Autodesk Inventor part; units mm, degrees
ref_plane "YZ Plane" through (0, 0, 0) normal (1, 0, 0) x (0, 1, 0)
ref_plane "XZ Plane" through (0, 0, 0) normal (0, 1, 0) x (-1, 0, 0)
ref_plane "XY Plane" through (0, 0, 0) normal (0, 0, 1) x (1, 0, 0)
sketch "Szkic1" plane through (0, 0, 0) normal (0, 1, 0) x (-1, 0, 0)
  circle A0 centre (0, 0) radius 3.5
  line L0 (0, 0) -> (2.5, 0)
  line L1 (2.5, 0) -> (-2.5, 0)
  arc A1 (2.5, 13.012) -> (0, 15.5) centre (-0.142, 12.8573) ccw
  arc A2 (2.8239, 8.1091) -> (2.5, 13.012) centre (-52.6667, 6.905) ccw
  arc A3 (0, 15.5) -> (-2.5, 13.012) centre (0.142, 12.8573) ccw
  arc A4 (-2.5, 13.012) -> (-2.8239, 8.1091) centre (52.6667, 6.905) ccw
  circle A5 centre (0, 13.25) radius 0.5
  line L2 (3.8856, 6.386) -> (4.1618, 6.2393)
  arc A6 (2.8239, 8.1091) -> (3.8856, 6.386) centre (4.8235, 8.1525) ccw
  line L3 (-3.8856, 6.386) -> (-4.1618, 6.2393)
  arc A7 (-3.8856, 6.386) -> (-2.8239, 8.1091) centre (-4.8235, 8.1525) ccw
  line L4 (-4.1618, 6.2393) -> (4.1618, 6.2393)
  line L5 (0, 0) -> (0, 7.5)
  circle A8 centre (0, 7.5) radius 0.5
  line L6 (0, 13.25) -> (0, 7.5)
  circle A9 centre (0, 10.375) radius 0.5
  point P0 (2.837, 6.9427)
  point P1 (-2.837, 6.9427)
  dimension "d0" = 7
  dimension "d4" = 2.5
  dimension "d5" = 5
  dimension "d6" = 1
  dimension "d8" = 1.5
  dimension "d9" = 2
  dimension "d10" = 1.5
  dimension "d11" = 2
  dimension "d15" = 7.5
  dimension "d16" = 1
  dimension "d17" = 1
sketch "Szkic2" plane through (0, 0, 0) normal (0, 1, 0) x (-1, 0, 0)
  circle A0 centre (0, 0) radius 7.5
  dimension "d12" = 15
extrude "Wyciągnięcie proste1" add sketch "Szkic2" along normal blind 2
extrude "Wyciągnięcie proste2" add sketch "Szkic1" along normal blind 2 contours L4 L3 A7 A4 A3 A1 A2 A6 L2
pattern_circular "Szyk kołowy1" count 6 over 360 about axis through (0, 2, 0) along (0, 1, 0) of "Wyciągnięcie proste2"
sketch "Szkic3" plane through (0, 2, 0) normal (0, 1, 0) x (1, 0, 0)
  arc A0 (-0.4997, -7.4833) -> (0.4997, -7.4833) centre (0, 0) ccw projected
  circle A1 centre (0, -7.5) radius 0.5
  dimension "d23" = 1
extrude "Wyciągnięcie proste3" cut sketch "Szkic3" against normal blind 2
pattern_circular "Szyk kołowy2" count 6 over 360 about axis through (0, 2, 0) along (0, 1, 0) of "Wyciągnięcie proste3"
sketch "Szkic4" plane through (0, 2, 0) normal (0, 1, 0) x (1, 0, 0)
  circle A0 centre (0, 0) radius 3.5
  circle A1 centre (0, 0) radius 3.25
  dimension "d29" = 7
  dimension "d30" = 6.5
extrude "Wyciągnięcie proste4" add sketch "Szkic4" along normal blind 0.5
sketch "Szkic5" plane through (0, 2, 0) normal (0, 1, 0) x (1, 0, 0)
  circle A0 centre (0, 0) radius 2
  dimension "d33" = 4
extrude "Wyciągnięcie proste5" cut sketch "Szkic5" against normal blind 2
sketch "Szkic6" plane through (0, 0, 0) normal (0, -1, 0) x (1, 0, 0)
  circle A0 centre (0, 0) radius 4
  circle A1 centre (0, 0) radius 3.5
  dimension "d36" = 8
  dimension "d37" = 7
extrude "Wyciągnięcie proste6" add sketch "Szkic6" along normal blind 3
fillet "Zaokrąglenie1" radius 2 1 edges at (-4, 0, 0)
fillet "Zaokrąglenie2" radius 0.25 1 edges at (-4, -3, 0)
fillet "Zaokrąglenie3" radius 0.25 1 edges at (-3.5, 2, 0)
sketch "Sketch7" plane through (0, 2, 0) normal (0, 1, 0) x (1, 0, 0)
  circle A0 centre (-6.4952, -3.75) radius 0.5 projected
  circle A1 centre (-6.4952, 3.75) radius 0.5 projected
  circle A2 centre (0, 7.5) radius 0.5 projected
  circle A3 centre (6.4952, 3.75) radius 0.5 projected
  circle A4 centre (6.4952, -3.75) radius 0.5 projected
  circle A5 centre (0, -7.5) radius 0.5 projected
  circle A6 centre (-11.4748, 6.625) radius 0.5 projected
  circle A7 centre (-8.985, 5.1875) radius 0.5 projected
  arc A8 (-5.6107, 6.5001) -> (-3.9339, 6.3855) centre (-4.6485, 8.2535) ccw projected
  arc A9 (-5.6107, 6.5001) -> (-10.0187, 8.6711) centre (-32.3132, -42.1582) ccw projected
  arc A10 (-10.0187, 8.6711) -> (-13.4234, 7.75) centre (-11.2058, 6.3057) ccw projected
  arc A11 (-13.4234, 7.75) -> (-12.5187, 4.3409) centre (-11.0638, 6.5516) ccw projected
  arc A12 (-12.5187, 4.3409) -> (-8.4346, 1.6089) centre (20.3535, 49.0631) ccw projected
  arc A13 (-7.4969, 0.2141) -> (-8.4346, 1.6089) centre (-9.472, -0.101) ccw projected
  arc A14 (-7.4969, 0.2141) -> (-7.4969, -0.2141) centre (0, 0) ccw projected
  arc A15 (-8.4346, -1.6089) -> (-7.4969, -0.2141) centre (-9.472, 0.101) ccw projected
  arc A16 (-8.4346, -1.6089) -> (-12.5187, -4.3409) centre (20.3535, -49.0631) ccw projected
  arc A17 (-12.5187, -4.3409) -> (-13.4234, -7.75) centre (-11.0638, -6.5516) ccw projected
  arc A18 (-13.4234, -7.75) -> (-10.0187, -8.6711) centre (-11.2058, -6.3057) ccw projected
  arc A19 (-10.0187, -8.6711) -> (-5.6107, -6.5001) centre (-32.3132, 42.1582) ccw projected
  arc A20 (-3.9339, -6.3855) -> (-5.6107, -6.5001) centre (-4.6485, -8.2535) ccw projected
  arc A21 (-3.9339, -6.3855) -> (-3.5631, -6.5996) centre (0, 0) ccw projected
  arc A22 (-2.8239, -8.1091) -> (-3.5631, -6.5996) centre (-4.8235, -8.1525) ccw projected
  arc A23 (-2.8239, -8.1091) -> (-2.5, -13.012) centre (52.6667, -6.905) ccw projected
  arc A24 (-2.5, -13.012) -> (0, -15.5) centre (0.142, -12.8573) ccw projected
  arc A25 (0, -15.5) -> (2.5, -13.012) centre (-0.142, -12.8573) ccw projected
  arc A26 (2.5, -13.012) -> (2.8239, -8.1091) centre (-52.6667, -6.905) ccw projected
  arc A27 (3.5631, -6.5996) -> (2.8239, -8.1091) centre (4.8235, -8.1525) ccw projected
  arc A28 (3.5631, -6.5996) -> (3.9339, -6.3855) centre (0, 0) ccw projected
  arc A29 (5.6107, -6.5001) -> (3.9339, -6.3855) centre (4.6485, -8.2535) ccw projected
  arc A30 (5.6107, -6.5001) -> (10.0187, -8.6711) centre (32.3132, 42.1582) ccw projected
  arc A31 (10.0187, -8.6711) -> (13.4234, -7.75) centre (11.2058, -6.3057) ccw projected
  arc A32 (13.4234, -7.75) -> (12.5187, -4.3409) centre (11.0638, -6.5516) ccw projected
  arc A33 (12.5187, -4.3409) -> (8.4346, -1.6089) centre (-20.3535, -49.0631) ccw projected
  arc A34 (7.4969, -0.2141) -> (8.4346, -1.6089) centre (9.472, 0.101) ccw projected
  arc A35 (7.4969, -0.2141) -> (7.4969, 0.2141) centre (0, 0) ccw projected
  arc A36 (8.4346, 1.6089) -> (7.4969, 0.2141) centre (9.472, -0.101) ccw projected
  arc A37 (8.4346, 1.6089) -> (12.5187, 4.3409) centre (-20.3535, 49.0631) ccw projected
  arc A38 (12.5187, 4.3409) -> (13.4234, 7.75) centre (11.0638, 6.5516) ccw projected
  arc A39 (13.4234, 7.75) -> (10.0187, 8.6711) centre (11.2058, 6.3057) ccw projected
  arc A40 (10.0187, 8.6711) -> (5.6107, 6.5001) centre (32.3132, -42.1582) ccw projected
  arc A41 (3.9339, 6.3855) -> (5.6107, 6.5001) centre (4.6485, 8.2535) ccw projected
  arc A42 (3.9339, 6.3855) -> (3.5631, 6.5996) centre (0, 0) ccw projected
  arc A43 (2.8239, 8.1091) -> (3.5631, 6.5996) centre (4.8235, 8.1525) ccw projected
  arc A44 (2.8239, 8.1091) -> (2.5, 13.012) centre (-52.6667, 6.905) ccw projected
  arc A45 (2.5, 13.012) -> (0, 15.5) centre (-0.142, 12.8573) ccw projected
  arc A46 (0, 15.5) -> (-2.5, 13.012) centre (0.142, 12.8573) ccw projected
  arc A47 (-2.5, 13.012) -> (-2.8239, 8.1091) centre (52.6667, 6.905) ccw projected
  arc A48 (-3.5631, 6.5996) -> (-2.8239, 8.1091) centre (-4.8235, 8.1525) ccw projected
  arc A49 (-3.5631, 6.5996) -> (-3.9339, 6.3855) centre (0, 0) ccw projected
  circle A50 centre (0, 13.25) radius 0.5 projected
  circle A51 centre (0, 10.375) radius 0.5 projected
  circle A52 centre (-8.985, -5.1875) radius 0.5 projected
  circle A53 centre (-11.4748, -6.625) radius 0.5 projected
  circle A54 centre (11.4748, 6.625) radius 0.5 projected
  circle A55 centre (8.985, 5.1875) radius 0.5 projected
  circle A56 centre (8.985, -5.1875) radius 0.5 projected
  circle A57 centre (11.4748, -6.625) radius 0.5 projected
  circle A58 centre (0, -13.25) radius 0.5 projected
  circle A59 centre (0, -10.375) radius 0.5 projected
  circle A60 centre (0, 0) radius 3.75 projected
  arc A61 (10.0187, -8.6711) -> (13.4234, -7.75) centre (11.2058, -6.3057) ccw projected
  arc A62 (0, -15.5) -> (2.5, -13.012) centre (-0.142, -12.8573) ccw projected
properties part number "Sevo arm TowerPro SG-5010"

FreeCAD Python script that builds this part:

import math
import FreeCAD as App
import Part
import Sketcher
from FreeCAD import Vector
Q = App.Units.Quantity


def edges_at(feature, points):
    """Names of the edges that pass closest to the given points."""
    edges = feature.Shape.Edges
    near = lambda p: min(range(len(edges)), key=lambda i: edges[i].distToShape(Part.Vertex(*p))[0])
    return sorted({f"Edge{near(p) + 1}" for p in points})

doc = App.newDocument("Part")
body = doc.addObject("PartDesign::Body", "Body")

# Sketch on XZ plane
sketch1 = doc.addObject("Sketcher::SketchObject", "Sketch")
body.addObject(sketch1)
sketch1.AttachmentSupport = (doc.XZ_Plane, [""])
sketch1.MapMode = "FlatFace"
sketch1.addGeometry(Part.Circle(Vector(0, 0, 0), Vector(0, 0, 1), 8), False)
sketch1.addConstraint([
    Sketcher.Constraint("Coincident", 0, 3, -1, 1),
    Sketcher.Constraint("Diameter", 0, Q("15 mm")),
])
pad1 = doc.addObject("PartDesign::Pad", "Pad")
body.addObject(pad1)
pad1.Profile = sketch1
pad1.Length = 2
pad1.Reversed = True

# Sketch on XZ plane
sketch2 = doc.addObject("Sketcher::SketchObject", "Sketch001")
body.addObject(sketch2)
sketch2.AttachmentSupport = (doc.XZ_Plane, [""])
sketch2.MapMode = "FlatFace"
sketch2.addGeometry([
    Part.LineSegment(Vector(4.16, 6.24, 0), Vector(0, 6.24, 0)),  # 0
    Part.LineSegment(Vector(0, 6.24, 0), Vector(-4.16, 6.24, 0)),  # 1
    Part.LineSegment(Vector(-4.16, 6.24, 0), Vector(-3.89, 6.39, 0)),  # 2
    Part.ArcOfCircle(Part.Circle(Vector(-4.82, 8.15, 0), Vector(0, 0, 1), 2), math.radians(-62), math.radians(-1)),  # 3
    Part.ArcOfCircle(Part.Circle(Vector(52.68, 6.9, 0), Vector(0, 0, 1), 55.52), math.radians(173.68), math.radians(178.76)),  # 4
    Part.ArcOfCircle(Part.Circle(Vector(0.14, 12.86, 0), Vector(0, 0, 1), 2.65), math.radians(93), math.radians(177)),  # 5
    Part.ArcOfCircle(Part.Circle(Vector(-0.14, 12.86, 0), Vector(0, 0, 1), 2.65), math.radians(3), math.radians(87)),  # 6
    Part.ArcOfCircle(Part.Circle(Vector(-52.65, 6.91, 0), Vector(0, 0, 1), 55.49), math.radians(1.24), math.radians(6.32)),  # 7
    Part.ArcOfCircle(Part.Circle(Vector(4.82, 8.15, 0), Vector(0, 0, 1), 2), math.radians(-179), math.radians(-118)),  # 8
    Part.LineSegment(Vector(3.89, 6.39, 0), Vector(4.16, 6.24, 0)),  # 9
    Part.ArcOfCircle(Part.Circle(Vector(0, 7.5, 0), Vector(0, 0, 1), 0.5), math.radians(90), math.radians(270)),  # 10
    Part.ArcOfCircle(Part.Circle(Vector(0, 7.5, 0), Vector(0, 0, 1), 0.5), math.radians(-90), math.radians(90)),  # 11
    Part.ArcOfCircle(Part.Circle(Vector(0, 10.38, 0), Vector(0, 0, 1), 0.5), math.radians(90), math.radians(270)),  # 12
    Part.ArcOfCircle(Part.Circle(Vector(0, 10.38, 0), Vector(0, 0, 1), 0.5), math.radians(-90), math.radians(90)),  # 13
    Part.Circle(Vector(0, 13.25, 0), Vector(0, 0, 1), 0.5),  # 14
], False)
sketch2.addConstraint([
    Sketcher.Constraint("Coincident", 0, 2, 1, 1),
    Sketcher.Constraint("Coincident", 1, 2, 2, 1),
    Sketcher.Constraint("Tangent", 2, 2, 3, 1),
    Sketcher.Constraint("Tangent", 3, 2, 4, 2),
    Sketcher.Constraint("Coincident", 4, 1, 5, 2),
    Sketcher.Constraint("Coincident", 5, 1, 6, 2),
    Sketcher.Constraint("Coincident", 6, 1, 7, 2),
    Sketcher.Constraint("Tangent", 7, 1, 8, 1),
    Sketcher.Constraint("Tangent", 8, 2, 9, 1),
    Sketcher.Constraint("Coincident", 9, 2, 0, 1),
    Sketcher.Constraint("Tangent", 10, 1, 11, 2),
    Sketcher.Constraint("Coincident", 11, 1, 10, 2),
    Sketcher.Constraint("Tangent", 12, 1, 13, 2),
    Sketcher.Constraint("Coincident", 13, 1, 12, 2),
    Sketcher.Constraint("Horizontal", 0),
    Sketcher.Constraint("Horizontal", 1),
    Sketcher.Constraint("Equal", 5, 6),
    Sketcher.Constraint("Equal", 3, 8),
    Sketcher.Constraint("Equal", 11, 12),
    Sketcher.Constraint("Equal", 13, 14),
    Sketcher.Constraint("Symmetric", 5, 3, 6, 3, -2),
    Sketcher.Constraint("Symmetric", 3, 3, 8, 3, -2),
    Sketcher.Constraint("PointOnObject", 10, 3, -2),
    Sketcher.Constraint("PointOnObject", 12, 3, -2),
    Sketcher.Constraint("PointOnObject", 14, 3, -2),
    Sketcher.Constraint("PointOnObject", 0, 2, -2),
    Sketcher.Constraint("PointOnObject", 10, 1, -2),
    Sketcher.Constraint("PointOnObject", 11, 1, -2),
    Sketcher.Constraint("PointOnObject", 12, 1, -2),
    Sketcher.Constraint("PointOnObject", 13, 1, -2),
    Sketcher.Constraint("Horizontal", 4, 1, 6, 1),
    Sketcher.Constraint("Horizontal", 2, 2, 8, 2),
    Sketcher.Constraint("Diameter", 14, Q("1 mm")),
    Sketcher.Constraint("Radius", 3, Q("2 mm")),
    Sketcher.Constraint("DistanceY", -1, 1, 11, 1, Q("7 mm")),
    Sketcher.Constraint("DistanceX", 4, 1, -1, 1, Q("2.5 mm")),
    Sketcher.Constraint("DistanceY", -1, 1, 5, 1, Q("15.5 mm")),
    Sketcher.Constraint("Radius", 4, Q("55.5206 mm")),
    Sketcher.Constraint("Radius", 5, Q("2.6465 mm")),
    Sketcher.Constraint("Radius", 7, Q("55.4867 mm")),
    Sketcher.Constraint("DistanceY", -1, 1, 14, 3, Q("13.25 mm")),
    Sketcher.Constraint("DistanceX", 0, 2, 0, 1, Q("4.1618 mm")),
    Sketcher.Constraint("DistanceX", -1, 1, 5, 3, Q("0.142 mm")),
    Sketcher.Constraint("DistanceY", -1, 1, 12, 3, Q("10.375 mm")),
    Sketcher.Constraint("DistanceY", -1, 1, 2, 2, Q("6.386 mm")),
    Sketcher.Constraint("DistanceX", 3, 2, -1, 1, Q("2.824 mm")),
    Sketcher.Constraint("DistanceY", -1, 1, 3, 2, Q("8.109 mm")),
])
pad2 = doc.addObject("PartDesign::Pad", "Pad001")
body.addObject(pad2)
pad2.Profile = sketch2
pad2.Length = 2
pad2.Reversed = True
doc.recompute()

polarpattern = doc.addObject("PartDesign::PolarPattern", "PolarPattern")
body.addObject(polarpattern)
polarpattern.Originals = [pad2]
polarpattern.Axis = (doc.Y_Axis, [""])
polarpattern.Angle = 360
polarpattern.Occurrences = 6
body.Tip = polarpattern

# Sketch on XZ plane
sketch3 = doc.addObject("Sketcher::SketchObject", "Sketch002")
body.addObject(sketch3)
sketch3.AttachmentSupport = (doc.XZ_Plane, [""])
sketch3.MapMode = "FlatFace"
sketch3.AttachmentOffset = App.Placement(Vector(0, 0, -2), App.Rotation())
sketch3.addGeometry(Part.Circle(Vector(0, 7.5, 0), Vector(0, 0, 1), 0.5), False)
sketch3.addConstraint([
    Sketcher.Constraint("PointOnObject", 0, 3, -2),
    Sketcher.Constraint("Diameter", 0, Q("1 mm")),
    Sketcher.Constraint("DistanceY", -1, 1, 0, 3, Q("7.5 mm")),
])
pocket1 = doc.addObject("PartDesign::Pocket", "Pocket")
body.addObject(pocket1)
pocket1.Profile = sketch3
pocket1.Length = 2
pocket1.Reversed = True
doc.recompute()

polarpattern2 = doc.addObject("PartDesign::PolarPattern", "PolarPattern001")
body.addObject(polarpattern2)
polarpattern2.Originals = [pocket1]
polarpattern2.Axis = (doc.Y_Axis, [""])
polarpattern2.Angle = 360
polarpattern2.Occurrences = 6
body.Tip = polarpattern2

# Sketch on XZ plane
sketch4 = doc.addObject("Sketcher::SketchObject", "Sketch003")
body.addObject(sketch4)
sketch4.AttachmentSupport = (doc.XZ_Plane, [""])
sketch4.MapMode = "FlatFace"
sketch4.AttachmentOffset = App.Placement(Vector(0, 0, -2), App.Rotation())
sketch4.addGeometry([
    Part.Circle(Vector(0, 0, 0), Vector(0, 0, 1), 3.5),
    Part.Circle(Vector(0, 0, 0), Vector(0, 0, 1), 3.2),
], False)
sketch4.addConstraint([
    Sketcher.Constraint("Coincident", 0, 3, -1, 1),
    Sketcher.Constraint("Coincident", 1, 3, -1, 1),
    Sketcher.Constraint("Diameter", 0, Q("7 mm")),
    Sketcher.Constraint("Diameter", 1, Q("6.5 mm")),
])
pad3 = doc.addObject("PartDesign::Pad", "Pad002")
body.addObject(pad3)
pad3.Profile = sketch4
pad3.Length = 0.5
pad3.Reversed = True

# Sketch on XZ plane
sketch5 = doc.addObject("Sketcher::SketchObject", "Sketch004")
body.addObject(sketch5)
sketch5.AttachmentSupport = (doc.XZ_Plane, [""])
sketch5.MapMode = "FlatFace"
sketch5.AttachmentOffset = App.Placement(Vector(0, 0, -2), App.Rotation())
sketch5.addGeometry(Part.Circle(Vector(0, 0, 0), Vector(0, 0, 1), 2), False)
sketch5.addConstraint([
    Sketcher.Constraint("Coincident", 0, 3, -1, 1),
    Sketcher.Constraint("Diameter", 0, Q("4 mm")),
])
pocket2 = doc.addObject("PartDesign::Pocket", "Pocket001")
body.addObject(pocket2)
pocket2.Profile = sketch5
pocket2.Length = 2
pocket2.Reversed = True

# Sketch on XZ plane
sketch6 = doc.addObject("Sketcher::SketchObject", "Sketch005")
body.addObject(sketch6)
sketch6.AttachmentSupport = (doc.XZ_Plane, [""])
sketch6.MapMode = "FlatFace"
sketch6.addGeometry([
    Part.Circle(Vector(0, 0, 0), Vector(0, 0, 1), 4),
    Part.Circle(Vector(0, 0, 0), Vector(0, 0, 1), 3.5),
], False)
sketch6.addConstraint([
    Sketcher.Constraint("Coincident", 0, 3, -1, 1),
    Sketcher.Constraint("Coincident", 1, 3, -1, 1),
    Sketcher.Constraint("Diameter", 0, Q("8 mm")),
    Sketcher.Constraint("Diameter", 1, Q("7 mm")),
])
pad4 = doc.addObject("PartDesign::Pad", "Pad003")
body.addObject(pad4)
pad4.Profile = sketch6
pad4.Length = 3
doc.recompute()

fillet = doc.addObject("PartDesign::Fillet", "Fillet")
body.addObject(fillet)
fillet.Base = (pad4, edges_at(pad4, [(-4, 0, 0)]))
fillet.Radius = 2
doc.recompute()

fillet2 = doc.addObject("PartDesign::Fillet", "Fillet001")
body.addObject(fillet2)
fillet2.Base = (fillet, edges_at(fillet, [(-4, -3, 0)]))
fillet2.Radius = 0.25
doc.recompute()

fillet3 = doc.addObject("PartDesign::Fillet", "Fillet002")
body.addObject(fillet3)
fillet3.Base = (fillet2, edges_at(fillet2, [(-3.5, 2, 0)]))
fillet3.Radius = 0.25

doc.recompute()
